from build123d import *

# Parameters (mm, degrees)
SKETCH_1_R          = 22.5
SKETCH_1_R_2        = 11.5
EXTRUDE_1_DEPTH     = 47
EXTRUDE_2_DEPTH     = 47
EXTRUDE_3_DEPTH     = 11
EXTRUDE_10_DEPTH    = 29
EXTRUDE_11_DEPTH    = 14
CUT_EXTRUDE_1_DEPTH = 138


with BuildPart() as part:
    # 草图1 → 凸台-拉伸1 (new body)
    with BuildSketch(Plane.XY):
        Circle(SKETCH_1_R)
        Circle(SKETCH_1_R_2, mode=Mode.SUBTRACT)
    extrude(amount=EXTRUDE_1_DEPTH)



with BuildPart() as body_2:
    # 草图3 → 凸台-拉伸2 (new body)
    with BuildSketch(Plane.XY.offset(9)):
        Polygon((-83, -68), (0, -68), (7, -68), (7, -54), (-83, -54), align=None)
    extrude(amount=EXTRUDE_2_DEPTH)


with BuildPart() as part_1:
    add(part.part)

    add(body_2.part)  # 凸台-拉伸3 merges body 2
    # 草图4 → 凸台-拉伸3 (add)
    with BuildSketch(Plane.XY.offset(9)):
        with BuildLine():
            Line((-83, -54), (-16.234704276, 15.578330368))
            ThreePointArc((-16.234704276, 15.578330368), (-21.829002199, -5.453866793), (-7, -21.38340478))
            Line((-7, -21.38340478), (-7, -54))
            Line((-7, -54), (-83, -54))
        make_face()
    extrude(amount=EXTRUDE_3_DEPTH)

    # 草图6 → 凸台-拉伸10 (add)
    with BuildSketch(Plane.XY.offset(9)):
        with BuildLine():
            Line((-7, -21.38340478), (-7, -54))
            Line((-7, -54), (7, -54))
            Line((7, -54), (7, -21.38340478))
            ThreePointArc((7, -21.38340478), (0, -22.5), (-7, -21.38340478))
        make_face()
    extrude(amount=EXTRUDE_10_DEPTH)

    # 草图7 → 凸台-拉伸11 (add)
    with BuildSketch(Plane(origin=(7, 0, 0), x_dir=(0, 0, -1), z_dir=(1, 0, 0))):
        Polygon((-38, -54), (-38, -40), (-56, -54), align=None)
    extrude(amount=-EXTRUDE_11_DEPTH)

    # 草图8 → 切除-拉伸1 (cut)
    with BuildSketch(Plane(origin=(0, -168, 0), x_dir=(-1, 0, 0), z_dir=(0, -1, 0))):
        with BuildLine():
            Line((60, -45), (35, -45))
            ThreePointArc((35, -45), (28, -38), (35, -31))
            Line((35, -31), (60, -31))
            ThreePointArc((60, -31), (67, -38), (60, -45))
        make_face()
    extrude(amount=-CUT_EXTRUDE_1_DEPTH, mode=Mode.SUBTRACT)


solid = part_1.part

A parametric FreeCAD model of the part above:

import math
import FreeCAD as App
import Part
import Sketcher
from FreeCAD import Vector
Q = App.Units.Quantity

doc = App.newDocument("Part")
params = doc.addObject("Spreadsheet::Sheet", "Params")
for row, (alias, value) in enumerate([
    ("sketch1_diameter", "45 mm"),
    ("sketch1_diameter2", "23 mm"),
    ("pad1_length", "47 mm"),
    ("sketch2_width", "90 mm"),
    ("sketch2_height", "14 mm"),
    ("pad2_length", "47 mm"),
    ("sketch3_radius", "22.5 mm"),
    ("sketch3_width", "76 mm"),
    ("pad3_length", "11 mm"),
    ("sketch4_radius", "22.5 mm"),
    ("sketch4_width", "14 mm"),
    ("pad4_length", "29 mm"),
    ("sketch5_width", "14 mm"),
    ("sketch5_height", "18 mm"),
    ("pad5_length", "14 mm"),
    ("sketch6_radius", "7 mm"),
    ("sketch6_width", "25 mm"),
    ("pocket1_length", "138 mm"),
], start=1):
    params.set(f"A{row}", alias)
    params.set(f"B{row}", "=" + value)
    params.setAlias(f"B{row}", alias)

body = doc.addObject("PartDesign::Body", "Body")

sketch1 = body.newObject("Sketcher::SketchObject", "Sketch")
sketch1.AttachmentSupport = (doc.getObject("XY_Plane"), [""])
sketch1.MapMode = "FlatFace"
sketch1.addGeometry([
    Part.Circle(Vector(0, 0, 0), Vector(0, 0, 1), 22),
    Part.Circle(Vector(0, 0, 0), Vector(0, 0, 1), 12),
], False)
sketch1.addConstraint([
    Sketcher.Constraint("Coincident", 0, 3, -1, 1),
    Sketcher.Constraint("Coincident", 1, 3, -1, 1),
    Sketcher.Constraint("Diameter", 0, Q("45 mm")),
    Sketcher.Constraint("Diameter", 1, Q("23 mm")),
])
sketch1.setExpression("Constraints[2]", "Params.sketch1_diameter")
sketch1.setExpression("Constraints[3]", "Params.sketch1_diameter2")
pad1 = body.newObject("PartDesign::Pad", "Pad")
pad1.Profile = sketch1
pad1.setExpression("Length", "Params.pad1_length")
body2 = doc.addObject("PartDesign::Body", "Body001")

sketch2 = body2.newObject("Sketcher::SketchObject", "Sketch001")
sketch2.AttachmentSupport = (doc.getObject("XY_Plane001"), [""])
sketch2.MapMode = "FlatFace"
sketch2.AttachmentOffset = App.Placement(Vector(0, 0, 9), App.Rotation())
sketch2.addGeometry([
    Part.LineSegment(Vector(-83, -68, 0), Vector(7, -68, 0)),
    Part.LineSegment(Vector(7, -68, 0), Vector(7, -54, 0)),
    Part.LineSegment(Vector(7, -54, 0), Vector(-83, -54, 0)),
    Part.LineSegment(Vector(-83, -54, 0), Vector(-83, -68, 0)),
], False)
sketch2.addConstraint([
    Sketcher.Constraint("Coincident", 0, 2, 1, 1),
    Sketcher.Constraint("Coincident", 1, 2, 2, 1),
    Sketcher.Constraint("Coincident", 2, 2, 3, 1),
    Sketcher.Constraint("Coincident", 3, 2, 0, 1),
    Sketcher.Constraint("Horizontal", 0),
    Sketcher.Constraint("Vertical", 1),
    Sketcher.Constraint("Horizontal", 2),
    Sketcher.Constraint("Vertical", 3),
    Sketcher.Constraint("DistanceX", 0, 1, 0, 2, Q("90 mm")),
    Sketcher.Constraint("DistanceY", 1, 1, 1, 2, Q("14 mm")),
    Sketcher.Constraint("DistanceX", -1, 1, 0, 2, Q("7 mm")),
    Sketcher.Constraint("DistanceY", 0, 2, -1, 1, Q("68 mm")),
])
sketch2.setExpression("Constraints[8]", "Params.sketch2_width")
sketch2.setExpression("Constraints[9]", "Params.sketch2_height")
pad2 = body2.newObject("PartDesign::Pad", "Pad001")
pad2.Profile = sketch2
pad2.setExpression("Length", "Params.pad2_length")
body.AllowCompound = True
doc.recompute()

boolean = body.newObject("PartDesign::Boolean", "Boolean")
boolean.Type = "Fuse"
boolean.addObjects([body2])

sketch3 = body.newObject("Sketcher::SketchObject", "Sketch002")
sketch3.AttachmentSupport = (doc.getObject("XY_Plane"), [""])
sketch3.MapMode = "FlatFace"
sketch3.AttachmentOffset = App.Placement(Vector(0, 0, 9), App.Rotation())
sketch3.addGeometry([
    Part.LineSegment(Vector(-16, 16, 0), Vector(-83, -54, 0)),
    Part.LineSegment(Vector(-83, -54, 0), Vector(-7, -54, 0)),
    Part.LineSegment(Vector(-7, -54, 0), Vector(-7, -21, 0)),
    Part.ArcOfCircle(Part.Circle(Vector(0, 0, 0), Vector(0, 0, 1), 22), math.radians(136), math.radians(252)),
], False)
sketch3.addConstraint([
    Sketcher.Constraint("Coincident", 0, 2, 1, 1),
    Sketcher.Constraint("Coincident", 1, 2, 2, 1),
    Sketcher.Constraint("Coincident", 2, 2, 3, 2),
    Sketcher.Constraint("Tangent", 3, 1, 0, 1),
    Sketcher.Constraint("Horizontal", 1),
    Sketcher.Constraint("Vertical", 2),
    Sketcher.Constraint("Coincident", 3, 3, -1, 1),
    Sketcher.Constraint("Radius", 3, Q("22.5 mm")),
    Sketcher.Constraint("DistanceX", 1, 1, 1, 2, Q("76 mm")),
    Sketcher.Constraint("DistanceX", 0, 2, -1, 1, Q("83 mm")),
    Sketcher.Constraint("DistanceY", 0, 2, -1, 1, Q("54 mm")),
])
sketch3.setExpression("Constraints[7]", "Params.sketch3_radius")
sketch3.setExpression("Constraints[8]", "Params.sketch3_width")
pad3 = body.newObject("PartDesign::Pad", "Pad002")
pad3.Profile = sketch3
pad3.setExpression("Length", "Params.pad3_length")

sketch4 = body.newObject("Sketcher::SketchObject", "Sketch003")
sketch4.AttachmentSupport = (doc.getObject("XY_Plane"), [""])
sketch4.MapMode = "FlatFace"
sketch4.AttachmentOffset = App.Placement(Vector(0, 0, 9), App.Rotation())
sketch4.addGeometry([
    Part.LineSegment(Vector(-7, -21, 0), Vector(-7, -54, 0)),
    Part.LineSegment(Vector(-7, -54, 0), Vector(7, -54, 0)),
    Part.LineSegment(Vector(7, -54, 0), Vector(7, -21, 0)),
    Part.ArcOfCircle(Part.Circle(Vector(0, 0, 0), Vector(0, 0, 1), 22), math.radians(-108), math.radians(-72)),
], False)
sketch4.addConstraint([
    Sketcher.Constraint("Coincident", 0, 2, 1, 1),
    Sketcher.Constraint("Coincident", 1, 2, 2, 1),
    Sketcher.Constraint("Coincident", 2, 2, 3, 2),
    Sketcher.Constraint("Coincident", 3, 1, 0, 1),
    Sketcher.Constraint("Vertical", 0),
    Sketcher.Constraint("Horizontal", 1),
    Sketcher.Constraint("Vertical", 2),
    Sketcher.Constraint("Coincident", 3, 3, -1, 1),
    Sketcher.Constraint("Horizontal", 2, 2, 3, 1),
    Sketcher.Constraint("Radius", 3, Q("22.5 mm")),
    Sketcher.Constraint("DistanceX", 1, 1, 1, 2, Q("14 mm")),
    Sketcher.Constraint("DistanceY", 0, 2, -1, 1, Q("54 mm")),
])
sketch4.setExpression("Constraints[9]", "Params.sketch4_radius")
sketch4.setExpression("Constraints[10]", "Params.sketch4_width")
pad4 = body.newObject("PartDesign::Pad", "Pad003")
pad4.Profile = sketch4
pad4.setExpression("Length", "Params.pad4_length")

sketch5 = body.newObject("Sketcher::SketchObject", "Sketch004")
sketch5.AttachmentSupport = (doc.getObject("YZ_Plane"), [""])
sketch5.MapMode = "FlatFace"
sketch5.AttachmentOffset = App.Placement(Vector(0, 0, 7), App.Rotation())
sketch5.addGeometry([
    Part.LineSegment(Vector(-54, 38, 0), Vector(-40, 38, 0)),
    Part.LineSegment(Vector(-40, 38, 0), Vector(-54, 56, 0)),
    Part.LineSegment(Vector(-54, 56, 0), Vector(-54, 38, 0)),
], False)
sketch5.addConstraint([
    Sketcher.Constraint("Coincident", 0, 2, 1, 1),
    Sketcher.Constraint("Coincident", 1, 2, 2, 1),
    Sketcher.Constraint("Coincident", 2, 2, 0, 1),
    Sketcher.Constraint("Horizontal", 0),
    Sketcher.Constraint("Vertical", 2),
    Sketcher.Constraint("DistanceX", 0, 1, 0, 2, Q("14 mm")),
    Sketcher.Constraint("DistanceY", 2, 2, 2, 1, Q("18 mm")),
    Sketcher.Constraint("DistanceX", 0, 2, -1, 1, Q("40 mm")),
    Sketcher.Constraint("DistanceY", -1, 1, 0, 2, Q("38 mm")),
])
sketch5.setExpression("Constraints[5]", "Params.sketch5_width")
sketch5.setExpression("Constraints[6]", "Params.sketch5_height")
pad5 = body.newObject("PartDesign::Pad", "Pad004")
pad5.Profile = sketch5
pad5.setExpression("Length", "Params.pad5_length")
pad5.Reversed = True

sketch6 = body.newObject("Sketcher::SketchObject", "Sketch005")
sketch6.AttachmentSupport = (doc.getObject("XZ_Plane"), [""])
sketch6.MapMode = "FlatFace"
sketch6.AttachmentOffset = App.Placement(Vector(0, 0, 168), App.Rotation())
sketch6.addGeometry([
    Part.LineSegment(Vector(-35, 45, 0), Vector(-60, 45, 0)),
    Part.ArcOfCircle(Part.Circle(Vector(-60, 38, 0), Vector(0, 0, 1), 7), math.radians(90), math.radians(270)),
    Part.LineSegment(Vector(-60, 31, 0), Vector(-35, 31, 0)),
    Part.ArcOfCircle(Part.Circle(Vector(-35, 38, 0), Vector(0, 0, 1), 7), math.radians(-90), math.radians(90)),
], False)
sketch6.addConstraint([
    Sketcher.Constraint("Tangent", 0, 2, 1, 1),
    Sketcher.Constraint("Tangent", 1, 2, 2, 1),
    Sketcher.Constraint("Tangent", 2, 2, 3, 1),
    Sketcher.Constraint("Tangent", 3, 2, 0, 1),
    Sketcher.Constraint("Horizontal", 0),
    Sketcher.Constraint("Horizontal", 2),
    Sketcher.Constraint("Radius", 1, Q("7 mm")),
    Sketcher.Constraint("DistanceX", 0, 2, 0, 1, Q("25 mm")),
    Sketcher.Constraint("DistanceX", 1, 3, -1, 1, Q("60 mm")),
    Sketcher.Constraint("DistanceY", -1, 1, 1, 3, Q("38 mm")),
])
sketch6.setExpression("Constraints[6]", "Params.sketch6_radius")
sketch6.setExpression("Constraints[7]", "Params.sketch6_width")
pocket1 = body.newObject("PartDesign::Pocket", "Pocket")
pocket1.Profile = sketch6
pocket1.setExpression("Length", "Params.pocket1_length")

doc.recompute()
